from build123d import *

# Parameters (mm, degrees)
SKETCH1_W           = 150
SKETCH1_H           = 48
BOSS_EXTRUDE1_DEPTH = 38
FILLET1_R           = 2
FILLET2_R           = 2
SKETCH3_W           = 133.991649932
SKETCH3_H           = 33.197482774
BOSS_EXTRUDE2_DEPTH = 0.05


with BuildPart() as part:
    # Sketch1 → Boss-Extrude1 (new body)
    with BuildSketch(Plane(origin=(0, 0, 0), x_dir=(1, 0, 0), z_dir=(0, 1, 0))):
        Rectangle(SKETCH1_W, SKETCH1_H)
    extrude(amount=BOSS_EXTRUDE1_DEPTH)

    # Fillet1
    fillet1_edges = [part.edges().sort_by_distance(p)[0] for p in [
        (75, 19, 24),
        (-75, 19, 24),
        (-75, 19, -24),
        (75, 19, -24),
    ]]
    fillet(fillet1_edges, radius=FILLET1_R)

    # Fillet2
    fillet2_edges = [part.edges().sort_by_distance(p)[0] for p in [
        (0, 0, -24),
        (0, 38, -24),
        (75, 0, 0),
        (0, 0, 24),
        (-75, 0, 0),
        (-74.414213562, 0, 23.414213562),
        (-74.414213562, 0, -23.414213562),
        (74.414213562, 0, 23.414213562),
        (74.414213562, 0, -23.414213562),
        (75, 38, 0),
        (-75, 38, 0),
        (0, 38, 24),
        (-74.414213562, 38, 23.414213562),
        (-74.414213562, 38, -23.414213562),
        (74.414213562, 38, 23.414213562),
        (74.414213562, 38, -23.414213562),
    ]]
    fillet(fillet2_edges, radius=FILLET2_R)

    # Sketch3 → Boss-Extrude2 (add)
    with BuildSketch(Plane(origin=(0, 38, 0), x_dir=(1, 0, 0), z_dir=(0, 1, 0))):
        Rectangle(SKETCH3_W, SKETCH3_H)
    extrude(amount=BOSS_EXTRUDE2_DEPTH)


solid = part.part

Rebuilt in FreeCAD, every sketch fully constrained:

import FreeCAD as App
import Part
import Sketcher
from FreeCAD import Vector
Q = App.Units.Quantity


def edges_at(feature, points):
    """Names of the edges that pass closest to the given points."""
    edges = feature.Shape.Edges
    near = lambda p: min(range(len(edges)), key=lambda i: edges[i].distToShape(Part.Vertex(*p))[0])
    return sorted({f"Edge{near(p) + 1}" for p in points})


def add_polygon(sketch, points):
    """Adds a closed chain of lines whose ends are joined by coincident constraints."""
    first, n = sketch.GeometryCount, len(points)
    for a, b in zip(points, points[1:] + points[:1]):
        sketch.addGeometry(Part.LineSegment(App.Vector(*a, 0), App.Vector(*b, 0)), False)
    for i in range(n):
        sketch.addConstraint(Sketcher.Constraint("Coincident", first + i, 2, first + (i + 1) % n, 1))

doc = App.newDocument("Part")
body = doc.addObject("PartDesign::Body", "Body")

sketch1 = doc.addObject("Sketcher::SketchObject", "Sketch")
body.addObject(sketch1)
sketch1.AttachmentSupport = (doc.XZ_Plane, [""])
sketch1.MapMode = "FlatFace"
add_polygon(sketch1, [(-75, -24), (-75, 24), (75, 24), (75, -24)])
sketch1.addConstraint([
    Sketcher.Constraint("Vertical", 0),
    Sketcher.Constraint("Horizontal", 1),
    Sketcher.Constraint("Vertical", 2),
    Sketcher.Constraint("Horizontal", 3),
    Sketcher.Constraint("Symmetric", 0, 2, 2, 2, -1, 1),
    Sketcher.Constraint("DistanceX", 1, 1, 1, 2, Q("150 mm")),
    Sketcher.Constraint("DistanceY", 0, 1, 0, 2, Q("48 mm")),
])
pad1 = doc.addObject("PartDesign::Pad", "Pad")
body.addObject(pad1)
pad1.Profile = sketch1
pad1.Length = 38
pad1.Reversed = True
doc.recompute()

fillet = doc.addObject("PartDesign::Fillet", "Fillet")
body.addObject(fillet)
fillet.Base = (pad1, edges_at(pad1, [
    (75, 19, 24),
    (-75, 19, 24),
    (-75, 19, -24),
    (75, 19, -24),
]))
fillet.Radius = 2
doc.recompute()

fillet2 = doc.addObject("PartDesign::Fillet", "Fillet001")
body.addObject(fillet2)
fillet2.Base = (fillet, edges_at(fillet, [
    (0, 0, -24),
    (0, 38, -24),
    (75, 0, 0),
    (0, 0, 24),
    (-75, 0, 0),
    (-74.414, 0, 23.414),
    (-74.414, 0, -23.414),
    (74.414, 0, 23.414),
    (74.414, 0, -23.414),
    (75, 38, 0),
    (-75, 38, 0),
    (0, 38, 24),
    (-74.414, 38, 23.414),
    (-74.414, 38, -23.414),
    (74.414, 38, 23.414),
    (74.414, 38, -23.414),
]))
fillet2.Radius = 2

sketch2 = doc.addObject("Sketcher::SketchObject", "Sketch001")
body.addObject(sketch2)
sketch2.AttachmentSupport = (doc.XZ_Plane, [""])
sketch2.MapMode = "FlatFace"
sketch2.AttachmentOffset = App.Placement(Vector(0, 0, -38), App.Rotation())
add_polygon(sketch2, [(-67, -17), (-67, 17), (67, 17), (67, -17)])
sketch2.addConstraint([
    Sketcher.Constraint("Vertical", 0),
    Sketcher.Constraint("Horizontal", 1),
    Sketcher.Constraint("Vertical", 2),
    Sketcher.Constraint("Horizontal", 3),
    Sketcher.Constraint("Symmetric", 0, 2, 2, 2, -1, 1),
    Sketcher.Constraint("DistanceX", 1, 1, 1, 2, Q("133.99165 mm")),
    Sketcher.Constraint("DistanceY", 0, 1, 0, 2, Q("33.197483 mm")),
])
pad2 = doc.addObject("PartDesign::Pad", "Pad001")
body.addObject(pad2)
pad2.Profile = sketch2
pad2.Length = 0.05
pad2.Reversed = True

doc.recompute()
